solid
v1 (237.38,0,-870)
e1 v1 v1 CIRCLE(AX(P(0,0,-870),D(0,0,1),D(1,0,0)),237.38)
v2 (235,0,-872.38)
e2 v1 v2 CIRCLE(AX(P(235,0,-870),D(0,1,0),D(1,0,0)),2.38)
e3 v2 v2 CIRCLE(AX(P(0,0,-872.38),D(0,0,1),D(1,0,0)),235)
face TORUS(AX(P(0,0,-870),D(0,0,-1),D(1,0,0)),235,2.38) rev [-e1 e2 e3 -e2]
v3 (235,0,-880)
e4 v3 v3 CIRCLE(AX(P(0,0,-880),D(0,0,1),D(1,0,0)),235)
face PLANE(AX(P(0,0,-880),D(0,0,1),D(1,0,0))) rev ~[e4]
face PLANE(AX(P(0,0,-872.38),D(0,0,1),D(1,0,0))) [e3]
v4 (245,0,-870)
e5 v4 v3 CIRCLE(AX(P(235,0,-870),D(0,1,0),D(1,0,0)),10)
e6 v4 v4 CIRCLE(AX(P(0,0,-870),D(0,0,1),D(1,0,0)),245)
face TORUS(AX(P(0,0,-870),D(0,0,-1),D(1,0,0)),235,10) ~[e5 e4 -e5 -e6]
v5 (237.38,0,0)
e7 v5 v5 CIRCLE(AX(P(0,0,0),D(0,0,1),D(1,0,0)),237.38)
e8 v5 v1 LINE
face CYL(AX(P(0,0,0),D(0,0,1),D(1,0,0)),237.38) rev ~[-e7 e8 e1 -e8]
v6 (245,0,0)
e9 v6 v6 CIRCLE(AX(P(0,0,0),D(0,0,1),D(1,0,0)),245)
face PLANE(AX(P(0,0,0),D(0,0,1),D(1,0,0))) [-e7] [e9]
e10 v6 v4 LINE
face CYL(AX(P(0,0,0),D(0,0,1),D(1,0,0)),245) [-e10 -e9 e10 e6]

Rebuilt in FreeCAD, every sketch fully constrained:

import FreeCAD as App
import Part
import Sketcher
from FreeCAD import Vector
Q = App.Units.Quantity


def edges_at(feature, points):
    """Names of the edges that pass closest to the given points."""
    edges = feature.Shape.Edges
    near = lambda p: min(range(len(edges)), key=lambda i: edges[i].distToShape(Part.Vertex(*p))[0])
    return sorted({f"Edge{near(p) + 1}" for p in points})


def faces_at(feature, points):
    """Names of the faces that lie closest to the given points."""
    faces = feature.Shape.Faces
    near = lambda p: min(range(len(faces)), key=lambda i: faces[i].distToShape(Part.Vertex(*p))[0])
    return sorted({f"Face{near(p) + 1}" for p in points})

doc = App.newDocument("Part")
body = doc.addObject("PartDesign::Body", "Body")

sketch1 = body.newObject("Sketcher::SketchObject", "Sketch")
sketch1.AttachmentSupport = (doc.getObject("XY_Plane"), [""])
sketch1.MapMode = "FlatFace"
sketch1.addGeometry(Part.Circle(Vector(0, 0, 0), Vector(0, 0, 1), 245), False)
sketch1.addConstraint(Sketcher.Constraint("Coincident", 0, 3, -1, 1))
sketch1.addConstraint(Sketcher.Constraint("Diameter", 0, Q("490 mm")))
pad1 = body.newObject("PartDesign::Pad", "Pad")
pad1.Profile = sketch1
pad1.Length = 880
pad1.Reversed = True
doc.recompute()

fillet = body.newObject("PartDesign::Fillet", "Fillet")
fillet.Base = (pad1, edges_at(pad1, [(-245, 0, -880)]))
fillet.Radius = 10
doc.recompute()

thickness = body.newObject("PartDesign::Thickness", "Thickness")
thickness.Base = (fillet, faces_at(fillet, [(0, 0, 0)]))
thickness.Value = 7.62
thickness.Reversed = True
thickness.Join = "Arc"

doc.recompute()
